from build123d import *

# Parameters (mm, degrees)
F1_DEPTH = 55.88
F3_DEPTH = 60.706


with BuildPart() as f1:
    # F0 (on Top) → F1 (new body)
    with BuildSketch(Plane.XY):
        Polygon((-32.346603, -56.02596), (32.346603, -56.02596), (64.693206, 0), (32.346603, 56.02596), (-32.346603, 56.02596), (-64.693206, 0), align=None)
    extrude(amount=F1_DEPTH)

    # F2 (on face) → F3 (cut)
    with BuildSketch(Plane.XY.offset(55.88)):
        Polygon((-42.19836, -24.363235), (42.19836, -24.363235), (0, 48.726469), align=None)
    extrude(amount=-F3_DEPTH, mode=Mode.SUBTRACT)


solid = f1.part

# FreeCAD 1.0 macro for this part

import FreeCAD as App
import Part
import Sketcher

V = App.Vector
Q = App.Units.Quantity


def add_polygon(sketch, points):
    """Adds a closed chain of lines whose ends are joined by coincident constraints."""
    first, n = sketch.GeometryCount, len(points)
    for a, b in zip(points, points[1:] + points[:1]):
        sketch.addGeometry(Part.LineSegment(App.Vector(*a, 0), App.Vector(*b, 0)), False)
    for i in range(n):
        sketch.addConstraint(Sketcher.Constraint("Coincident", first + i, 2, first + (i + 1) % n, 1))

doc = App.newDocument("Part")
body = doc.addObject("PartDesign::Body", "Body")

# Sketch on XY plane
sketch1 = body.newObject("Sketcher::SketchObject", "Sketch")
sketch1.AttachmentSupport = (doc.getObject("XY_Plane"), [""])
sketch1.MapMode = "FlatFace"
add_polygon(sketch1, [(-32, -56), (32, -56), (65, 0), (32, 56), (-32, 56), (-65, 0)])  # lines 0-5
sketch1.addConstraint([
    Sketcher.Constraint("Horizontal", 0),
    Sketcher.Constraint("Horizontal", 3),
    Sketcher.Constraint("Symmetric", 0, 2, 3, 2, -1, 1),
    Sketcher.Constraint("Symmetric", 1, 2, 4, 2, -1, 1),
    Sketcher.Constraint("PointOnObject", 1, 2, -1),
    Sketcher.Constraint("Parallel", 2, 5),
    Sketcher.Constraint("Vertical", 0, 2, 2, 2),
    Sketcher.Constraint("Angle", 1, Q("60 deg")),
    Sketcher.Constraint("DistanceX", 0, 1, 0, 2, Q("64.693206 mm")),
    Sketcher.Constraint("DistanceY", 0, 2, -1, 1, Q("56.02596 mm")),
])
pad1 = body.newObject("PartDesign::Pad", "Pad")
pad1.Profile = sketch1
pad1.Length = Q("2.2 in")

# Sketch on XY plane
sketch2 = body.newObject("Sketcher::SketchObject", "Sketch001")
sketch2.AttachmentSupport = (doc.getObject("XY_Plane"), [""])
sketch2.MapMode = "FlatFace"
sketch2.AttachmentOffset = App.Placement(V(0, 0, 2.2 * 25.4), App.Rotation())
add_polygon(sketch2, [(-42, -24), (42, -24), (0, 49)])  # lines 0-2
sketch2.addConstraint([
    Sketcher.Constraint("Horizontal", 0),
    Sketcher.Constraint("PointOnObject", 1, 2, -2),
    Sketcher.Constraint("Equal", 1, 2),
    Sketcher.Constraint("Angle", 1, Q("120 deg")),
    Sketcher.Constraint("DistanceX", 0, 1, 0, 2, Q("84.39672 mm")),
    Sketcher.Constraint("DistanceY", -1, 1, 1, 2, Q("48.726469 mm")),
])
pocket1 = body.newObject("PartDesign::Pocket", "Pocket")
pocket1.Profile = sketch2
pocket1.Length = Q("2.39 in")

doc.recompute()
